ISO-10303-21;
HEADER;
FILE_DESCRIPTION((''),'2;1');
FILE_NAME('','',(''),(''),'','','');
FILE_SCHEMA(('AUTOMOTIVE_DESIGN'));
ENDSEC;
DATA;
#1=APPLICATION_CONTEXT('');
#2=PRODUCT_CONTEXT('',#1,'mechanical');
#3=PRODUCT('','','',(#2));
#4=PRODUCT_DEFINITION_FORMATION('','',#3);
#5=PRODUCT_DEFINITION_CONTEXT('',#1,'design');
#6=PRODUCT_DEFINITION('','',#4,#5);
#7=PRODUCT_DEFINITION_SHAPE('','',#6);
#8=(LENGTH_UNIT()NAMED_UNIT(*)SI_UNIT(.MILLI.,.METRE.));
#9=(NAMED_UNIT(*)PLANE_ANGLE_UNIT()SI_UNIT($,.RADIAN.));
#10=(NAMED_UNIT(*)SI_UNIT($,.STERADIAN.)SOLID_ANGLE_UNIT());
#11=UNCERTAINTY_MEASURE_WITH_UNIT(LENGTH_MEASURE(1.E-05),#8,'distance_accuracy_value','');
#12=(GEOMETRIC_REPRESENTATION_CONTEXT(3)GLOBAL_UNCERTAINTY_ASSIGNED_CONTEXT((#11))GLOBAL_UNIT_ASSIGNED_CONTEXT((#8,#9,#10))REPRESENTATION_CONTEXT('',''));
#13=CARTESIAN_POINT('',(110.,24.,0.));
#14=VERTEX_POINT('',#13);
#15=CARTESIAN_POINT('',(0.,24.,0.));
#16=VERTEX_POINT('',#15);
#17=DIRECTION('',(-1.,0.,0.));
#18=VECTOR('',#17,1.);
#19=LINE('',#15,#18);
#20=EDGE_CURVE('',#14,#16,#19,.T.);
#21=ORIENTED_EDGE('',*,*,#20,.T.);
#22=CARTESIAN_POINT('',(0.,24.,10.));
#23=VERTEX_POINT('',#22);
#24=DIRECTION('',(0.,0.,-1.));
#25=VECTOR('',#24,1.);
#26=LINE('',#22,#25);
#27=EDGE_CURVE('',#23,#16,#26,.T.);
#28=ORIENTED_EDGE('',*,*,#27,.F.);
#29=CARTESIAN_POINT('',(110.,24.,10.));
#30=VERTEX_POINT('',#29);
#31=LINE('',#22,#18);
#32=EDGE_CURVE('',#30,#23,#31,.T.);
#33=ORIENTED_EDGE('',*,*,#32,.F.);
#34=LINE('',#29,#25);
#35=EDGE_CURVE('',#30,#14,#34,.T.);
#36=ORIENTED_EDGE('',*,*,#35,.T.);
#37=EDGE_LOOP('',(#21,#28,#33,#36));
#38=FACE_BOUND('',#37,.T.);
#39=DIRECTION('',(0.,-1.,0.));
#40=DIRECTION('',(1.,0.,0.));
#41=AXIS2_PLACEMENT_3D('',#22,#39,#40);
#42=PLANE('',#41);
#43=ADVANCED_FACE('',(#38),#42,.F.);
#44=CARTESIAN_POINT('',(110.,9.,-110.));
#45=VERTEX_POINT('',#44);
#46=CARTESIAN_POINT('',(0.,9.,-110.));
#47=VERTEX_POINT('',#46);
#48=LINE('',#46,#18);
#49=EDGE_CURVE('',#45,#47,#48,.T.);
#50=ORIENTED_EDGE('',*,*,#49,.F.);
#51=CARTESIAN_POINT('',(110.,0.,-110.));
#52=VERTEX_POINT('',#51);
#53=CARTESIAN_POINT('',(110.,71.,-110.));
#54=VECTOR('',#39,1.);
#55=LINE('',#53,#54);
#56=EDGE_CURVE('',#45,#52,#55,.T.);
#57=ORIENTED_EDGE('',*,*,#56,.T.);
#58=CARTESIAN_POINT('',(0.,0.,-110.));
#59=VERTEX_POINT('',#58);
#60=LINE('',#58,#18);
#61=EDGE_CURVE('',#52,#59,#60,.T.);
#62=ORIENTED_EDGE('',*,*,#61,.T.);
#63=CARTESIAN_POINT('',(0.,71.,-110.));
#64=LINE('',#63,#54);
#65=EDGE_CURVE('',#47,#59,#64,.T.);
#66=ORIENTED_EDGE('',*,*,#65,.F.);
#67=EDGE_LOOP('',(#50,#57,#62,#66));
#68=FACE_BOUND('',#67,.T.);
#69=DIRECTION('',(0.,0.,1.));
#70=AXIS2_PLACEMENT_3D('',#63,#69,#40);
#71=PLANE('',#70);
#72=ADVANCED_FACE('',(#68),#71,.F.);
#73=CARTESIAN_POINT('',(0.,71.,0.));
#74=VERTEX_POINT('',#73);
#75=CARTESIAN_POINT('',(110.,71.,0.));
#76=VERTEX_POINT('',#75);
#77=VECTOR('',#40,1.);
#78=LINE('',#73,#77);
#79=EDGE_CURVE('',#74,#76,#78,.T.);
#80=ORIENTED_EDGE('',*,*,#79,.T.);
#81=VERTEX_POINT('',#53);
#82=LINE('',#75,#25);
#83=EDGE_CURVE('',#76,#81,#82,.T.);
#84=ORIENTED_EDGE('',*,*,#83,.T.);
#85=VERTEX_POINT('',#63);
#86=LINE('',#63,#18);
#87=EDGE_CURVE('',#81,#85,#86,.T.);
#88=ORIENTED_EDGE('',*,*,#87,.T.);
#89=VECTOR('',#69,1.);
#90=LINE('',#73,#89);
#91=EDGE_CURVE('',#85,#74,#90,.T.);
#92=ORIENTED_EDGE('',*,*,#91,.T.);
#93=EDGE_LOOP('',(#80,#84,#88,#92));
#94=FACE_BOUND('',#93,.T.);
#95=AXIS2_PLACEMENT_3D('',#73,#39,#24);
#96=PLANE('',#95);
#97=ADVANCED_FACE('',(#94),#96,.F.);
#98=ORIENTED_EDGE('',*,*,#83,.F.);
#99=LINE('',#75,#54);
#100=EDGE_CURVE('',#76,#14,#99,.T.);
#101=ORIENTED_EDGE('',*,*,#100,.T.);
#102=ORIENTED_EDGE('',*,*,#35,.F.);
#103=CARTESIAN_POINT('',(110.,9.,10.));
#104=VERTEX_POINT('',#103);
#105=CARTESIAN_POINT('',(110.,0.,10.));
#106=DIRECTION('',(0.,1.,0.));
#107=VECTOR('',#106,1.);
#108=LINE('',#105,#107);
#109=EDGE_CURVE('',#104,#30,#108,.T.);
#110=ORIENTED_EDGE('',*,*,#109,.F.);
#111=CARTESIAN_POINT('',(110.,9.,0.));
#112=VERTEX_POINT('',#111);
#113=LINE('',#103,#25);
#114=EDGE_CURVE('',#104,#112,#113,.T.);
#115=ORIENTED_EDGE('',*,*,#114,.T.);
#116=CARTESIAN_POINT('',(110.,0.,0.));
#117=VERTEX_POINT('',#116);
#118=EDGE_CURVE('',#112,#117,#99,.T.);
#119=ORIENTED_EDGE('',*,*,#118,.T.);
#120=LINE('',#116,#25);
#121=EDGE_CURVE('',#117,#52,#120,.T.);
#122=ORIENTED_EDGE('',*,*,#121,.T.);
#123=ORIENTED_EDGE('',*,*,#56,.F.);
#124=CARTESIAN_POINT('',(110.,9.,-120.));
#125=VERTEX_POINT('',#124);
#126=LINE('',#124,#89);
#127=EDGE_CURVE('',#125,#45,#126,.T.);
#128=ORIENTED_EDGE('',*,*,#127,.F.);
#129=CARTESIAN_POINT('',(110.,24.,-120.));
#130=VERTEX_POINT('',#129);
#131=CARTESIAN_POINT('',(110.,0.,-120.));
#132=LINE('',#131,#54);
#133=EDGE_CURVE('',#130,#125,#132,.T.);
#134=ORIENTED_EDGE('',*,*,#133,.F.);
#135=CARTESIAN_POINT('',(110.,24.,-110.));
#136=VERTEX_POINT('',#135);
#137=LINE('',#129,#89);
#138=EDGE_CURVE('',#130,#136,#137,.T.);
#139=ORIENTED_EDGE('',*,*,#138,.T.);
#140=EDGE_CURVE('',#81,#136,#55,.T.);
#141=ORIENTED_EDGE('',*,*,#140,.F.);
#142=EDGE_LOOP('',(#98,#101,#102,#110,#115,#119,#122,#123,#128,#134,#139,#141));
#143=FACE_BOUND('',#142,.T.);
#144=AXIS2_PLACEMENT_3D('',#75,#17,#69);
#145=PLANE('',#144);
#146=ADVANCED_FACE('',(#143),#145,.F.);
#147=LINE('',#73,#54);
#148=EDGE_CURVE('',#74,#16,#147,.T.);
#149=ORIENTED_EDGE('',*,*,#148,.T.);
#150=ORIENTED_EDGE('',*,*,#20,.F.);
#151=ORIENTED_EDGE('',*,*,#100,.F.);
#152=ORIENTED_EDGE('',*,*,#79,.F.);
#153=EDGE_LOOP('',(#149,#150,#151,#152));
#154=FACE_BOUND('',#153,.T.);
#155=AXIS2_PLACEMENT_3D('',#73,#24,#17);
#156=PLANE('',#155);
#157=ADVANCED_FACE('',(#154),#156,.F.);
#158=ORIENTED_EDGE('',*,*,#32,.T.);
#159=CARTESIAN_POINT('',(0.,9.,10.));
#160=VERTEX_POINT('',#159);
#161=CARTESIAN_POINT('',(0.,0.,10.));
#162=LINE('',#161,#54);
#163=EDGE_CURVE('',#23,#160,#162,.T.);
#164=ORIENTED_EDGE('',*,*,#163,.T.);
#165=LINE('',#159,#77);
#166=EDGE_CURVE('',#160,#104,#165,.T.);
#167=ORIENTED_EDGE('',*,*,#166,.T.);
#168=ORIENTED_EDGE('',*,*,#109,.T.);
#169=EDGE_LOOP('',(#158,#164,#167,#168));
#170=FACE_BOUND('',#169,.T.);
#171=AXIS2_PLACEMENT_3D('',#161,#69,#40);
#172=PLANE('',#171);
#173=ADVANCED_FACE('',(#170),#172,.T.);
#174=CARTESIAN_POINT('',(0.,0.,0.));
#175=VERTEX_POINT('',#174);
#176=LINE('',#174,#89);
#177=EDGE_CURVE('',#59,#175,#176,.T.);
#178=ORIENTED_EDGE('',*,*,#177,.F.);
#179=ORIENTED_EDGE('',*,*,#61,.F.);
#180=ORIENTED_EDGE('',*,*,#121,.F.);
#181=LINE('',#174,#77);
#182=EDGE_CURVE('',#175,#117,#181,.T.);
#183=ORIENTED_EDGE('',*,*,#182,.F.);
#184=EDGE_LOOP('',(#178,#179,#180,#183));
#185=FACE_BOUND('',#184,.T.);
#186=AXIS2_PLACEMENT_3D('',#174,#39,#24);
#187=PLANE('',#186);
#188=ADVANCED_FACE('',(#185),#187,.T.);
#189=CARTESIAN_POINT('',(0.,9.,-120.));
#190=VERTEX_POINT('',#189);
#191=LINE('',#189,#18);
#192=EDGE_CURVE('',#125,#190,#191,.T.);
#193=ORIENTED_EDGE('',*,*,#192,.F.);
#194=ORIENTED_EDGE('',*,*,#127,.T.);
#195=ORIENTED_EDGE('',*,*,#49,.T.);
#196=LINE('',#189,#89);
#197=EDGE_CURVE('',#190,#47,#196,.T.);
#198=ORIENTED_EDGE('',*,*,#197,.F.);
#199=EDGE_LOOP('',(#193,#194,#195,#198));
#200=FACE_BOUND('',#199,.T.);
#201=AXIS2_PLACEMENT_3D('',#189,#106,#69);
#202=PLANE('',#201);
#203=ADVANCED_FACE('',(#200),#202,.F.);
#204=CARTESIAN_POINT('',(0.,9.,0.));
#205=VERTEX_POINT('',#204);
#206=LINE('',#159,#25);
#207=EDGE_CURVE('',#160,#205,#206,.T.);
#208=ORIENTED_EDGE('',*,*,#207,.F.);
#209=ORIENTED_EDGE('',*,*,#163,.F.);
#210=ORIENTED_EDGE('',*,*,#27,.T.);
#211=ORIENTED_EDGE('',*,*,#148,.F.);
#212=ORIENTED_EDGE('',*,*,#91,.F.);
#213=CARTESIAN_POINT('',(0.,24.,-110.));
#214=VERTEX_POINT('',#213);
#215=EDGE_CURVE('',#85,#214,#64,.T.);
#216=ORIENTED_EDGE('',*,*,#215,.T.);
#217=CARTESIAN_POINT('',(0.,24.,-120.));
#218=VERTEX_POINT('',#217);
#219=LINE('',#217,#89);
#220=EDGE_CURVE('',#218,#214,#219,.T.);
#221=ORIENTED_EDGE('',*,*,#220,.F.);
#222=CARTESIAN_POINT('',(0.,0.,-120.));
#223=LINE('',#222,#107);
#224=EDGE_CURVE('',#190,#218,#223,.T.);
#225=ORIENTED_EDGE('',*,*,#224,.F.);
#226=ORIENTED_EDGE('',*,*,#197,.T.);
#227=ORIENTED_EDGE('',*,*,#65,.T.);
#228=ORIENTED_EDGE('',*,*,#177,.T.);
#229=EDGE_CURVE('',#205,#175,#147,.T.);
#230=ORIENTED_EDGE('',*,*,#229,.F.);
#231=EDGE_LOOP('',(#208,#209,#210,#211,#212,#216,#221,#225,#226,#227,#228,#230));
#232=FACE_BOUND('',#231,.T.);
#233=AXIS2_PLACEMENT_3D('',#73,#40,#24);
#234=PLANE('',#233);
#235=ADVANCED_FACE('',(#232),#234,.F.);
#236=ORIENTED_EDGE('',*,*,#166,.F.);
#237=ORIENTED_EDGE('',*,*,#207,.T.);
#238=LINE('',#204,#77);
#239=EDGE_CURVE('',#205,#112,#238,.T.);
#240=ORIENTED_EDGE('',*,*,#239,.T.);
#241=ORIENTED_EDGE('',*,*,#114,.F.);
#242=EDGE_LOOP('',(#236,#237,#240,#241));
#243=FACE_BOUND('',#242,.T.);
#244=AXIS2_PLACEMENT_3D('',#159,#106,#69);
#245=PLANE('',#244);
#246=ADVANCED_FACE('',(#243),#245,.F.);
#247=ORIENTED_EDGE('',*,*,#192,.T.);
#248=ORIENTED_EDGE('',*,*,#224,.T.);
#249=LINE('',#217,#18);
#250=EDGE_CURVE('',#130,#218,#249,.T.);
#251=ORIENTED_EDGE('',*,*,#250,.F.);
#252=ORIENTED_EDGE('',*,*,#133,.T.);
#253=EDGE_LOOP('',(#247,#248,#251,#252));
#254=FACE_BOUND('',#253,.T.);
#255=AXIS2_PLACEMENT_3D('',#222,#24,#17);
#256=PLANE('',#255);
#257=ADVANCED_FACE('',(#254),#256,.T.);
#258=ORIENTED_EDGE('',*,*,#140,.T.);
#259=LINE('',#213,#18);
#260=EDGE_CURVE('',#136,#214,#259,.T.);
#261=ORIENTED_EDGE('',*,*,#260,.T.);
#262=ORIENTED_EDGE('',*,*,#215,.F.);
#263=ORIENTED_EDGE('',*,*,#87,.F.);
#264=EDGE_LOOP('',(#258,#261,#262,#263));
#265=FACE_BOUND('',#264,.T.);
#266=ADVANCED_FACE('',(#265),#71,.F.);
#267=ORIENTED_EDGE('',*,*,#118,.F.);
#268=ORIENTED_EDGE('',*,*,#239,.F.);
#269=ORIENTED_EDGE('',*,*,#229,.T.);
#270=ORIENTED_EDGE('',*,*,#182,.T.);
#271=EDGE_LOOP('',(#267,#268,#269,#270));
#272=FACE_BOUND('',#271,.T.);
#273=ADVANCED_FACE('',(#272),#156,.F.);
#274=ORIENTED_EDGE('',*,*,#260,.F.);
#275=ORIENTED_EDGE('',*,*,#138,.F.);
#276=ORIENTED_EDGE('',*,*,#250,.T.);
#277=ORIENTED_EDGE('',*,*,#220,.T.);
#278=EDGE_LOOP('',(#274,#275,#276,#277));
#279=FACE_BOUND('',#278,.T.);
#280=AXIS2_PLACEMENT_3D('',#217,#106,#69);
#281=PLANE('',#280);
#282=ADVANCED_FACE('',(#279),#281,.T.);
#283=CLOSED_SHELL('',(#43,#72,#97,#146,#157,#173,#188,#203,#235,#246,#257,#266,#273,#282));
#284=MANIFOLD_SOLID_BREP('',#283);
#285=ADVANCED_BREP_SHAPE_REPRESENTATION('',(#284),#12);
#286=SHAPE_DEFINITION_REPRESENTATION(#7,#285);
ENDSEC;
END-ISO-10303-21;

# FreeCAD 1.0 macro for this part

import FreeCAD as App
import Part
import Sketcher
from FreeCAD import Vector

doc = App.newDocument("Part")
params = doc.addObject("Spreadsheet::Sheet", "Params")
for row, (alias, value) in enumerate([
    ("sketch1_width", "110 mm"),
    ("pad1_length", "71 mm"),
    ("sketch2_width", "110 mm"),
    ("sketch2_height", "15 mm"),
    ("pad2_length", "10 mm"),
    ("sketch3_width", "110 mm"),
    ("sketch3_height", "15 mm"),
    ("pad3_length", "10 mm"),
], start=1):
    params.set(f"A{row}", alias)
    params.set(f"B{row}", "=" + value)
    params.setAlias(f"B{row}", alias)

body = doc.addObject("PartDesign::Body", "Body")

# Sketch on XZ plane
sketch1 = body.newObject("Sketcher::SketchObject", "Sketch")
sketch1.AttachmentSupport = (doc.getObject("XZ_Plane"), [""])
sketch1.MapMode = "FlatFace"
sketch1.addGeometry([
    Part.LineSegment(Vector(0, -110, 0), Vector(0, 0, 0)),
    Part.LineSegment(Vector(0, 0, 0), Vector(110, 0, 0)),
    Part.LineSegment(Vector(110, 0, 0), Vector(110, -110, 0)),
    Part.LineSegment(Vector(110, -110, 0), Vector(0, -110, 0)),
], False)
sketch1.addConstraint([
    Sketcher.Constraint("Coincident", 0, 2, 1, 1),
    Sketcher.Constraint("Coincident", 1, 2, 2, 1),
    Sketcher.Constraint("Coincident", 2, 2, 3, 1),
    Sketcher.Constraint("Coincident", 3, 2, 0, 1),
    Sketcher.Constraint("Vertical", 0),
    Sketcher.Constraint("Horizontal", 1),
    Sketcher.Constraint("Vertical", 2),
    Sketcher.Constraint("Horizontal", 3),
    Sketcher.Constraint("Coincident", 0, 2, -1, 1),
    Sketcher.Constraint("Equal", 3, 0),
    Sketcher.Constraint("DistanceX", 1, 1, 1, 2, 110.0),
])
sketch1.setExpression("Constraints[10]", "Params.sketch1_width")
pad1 = body.newObject("PartDesign::Pad", "Pad")
pad1.Profile = sketch1
pad1.setExpression("Length", "Params.pad1_length")
pad1.Reversed = True

# Sketch on XY plane
sketch2 = body.newObject("Sketcher::SketchObject", "Sketch001")
sketch2.AttachmentSupport = (doc.getObject("XY_Plane"), [""])
sketch2.MapMode = "FlatFace"
sketch2.addGeometry([
    Part.LineSegment(Vector(0, 24, 0), Vector(0, 9, 0)),
    Part.LineSegment(Vector(0, 9, 0), Vector(110, 9, 0)),
    Part.LineSegment(Vector(110, 9, 0), Vector(110, 24, 0)),
    Part.LineSegment(Vector(110, 24, 0), Vector(0, 24, 0)),
], False)
sketch2.addConstraint([
    Sketcher.Constraint("Coincident", 0, 2, 1, 1),
    Sketcher.Constraint("Coincident", 1, 2, 2, 1),
    Sketcher.Constraint("Coincident", 2, 2, 3, 1),
    Sketcher.Constraint("Coincident", 3, 2, 0, 1),
    Sketcher.Constraint("Vertical", 0),
    Sketcher.Constraint("Horizontal", 1),
    Sketcher.Constraint("Vertical", 2),
    Sketcher.Constraint("Horizontal", 3),
    Sketcher.Constraint("PointOnObject", 0, 2, -2),
    Sketcher.Constraint("DistanceX", 1, 1, 1, 2, 110.0),
    Sketcher.Constraint("DistanceY", 0, 2, 0, 1, 15.0),
    Sketcher.Constraint("DistanceY", -1, 1, 0, 2, 9.0),
])
sketch2.setExpression("Constraints[9]", "Params.sketch2_width")
sketch2.setExpression("Constraints[10]", "Params.sketch2_height")
pad2 = body.newObject("PartDesign::Pad", "Pad001")
pad2.Profile = sketch2
pad2.setExpression("Length", "Params.pad2_length")

# Sketch on XY plane
sketch3 = body.newObject("Sketcher::SketchObject", "Sketch002")
sketch3.AttachmentSupport = (doc.getObject("XY_Plane"), [""])
sketch3.MapMode = "FlatFace"
sketch3.AttachmentOffset = App.Placement(Vector(0, 0, -110), App.Rotation())
sketch3.addGeometry([
    Part.LineSegment(Vector(110, 24, 0), Vector(110, 9, 0)),
    Part.LineSegment(Vector(110, 9, 0), Vector(0, 9, 0)),
    Part.LineSegment(Vector(0, 9, 0), Vector(0, 24, 0)),
    Part.LineSegment(Vector(0, 24, 0), Vector(110, 24, 0)),
], False)
sketch3.addConstraint([
    Sketcher.Constraint("Coincident", 0, 2, 1, 1),
    Sketcher.Constraint("Coincident", 1, 2, 2, 1),
    Sketcher.Constraint("Coincident", 2, 2, 3, 1),
    Sketcher.Constraint("Coincident", 3, 2, 0, 1),
    Sketcher.Constraint("Vertical", 0),
    Sketcher.Constraint("Horizontal", 1),
    Sketcher.Constraint("Vertical", 2),
    Sketcher.Constraint("Horizontal", 3),
    Sketcher.Constraint("PointOnObject", 1, 2, -2),
    Sketcher.Constraint("DistanceX", 1, 2, 1, 1, 110.0),
    Sketcher.Constraint("DistanceY", 0, 2, 0, 1, 15.0),
    Sketcher.Constraint("DistanceY", -1, 1, 0, 2, 9.0),
])
sketch3.setExpression("Constraints[9]", "Params.sketch3_width")
sketch3.setExpression("Constraints[10]", "Params.sketch3_height")
pad3 = body.newObject("PartDesign::Pad", "Pad002")
pad3.Profile = sketch3
pad3.setExpression("Length", "Params.pad3_length")
pad3.Reversed = True

doc.recompute()
